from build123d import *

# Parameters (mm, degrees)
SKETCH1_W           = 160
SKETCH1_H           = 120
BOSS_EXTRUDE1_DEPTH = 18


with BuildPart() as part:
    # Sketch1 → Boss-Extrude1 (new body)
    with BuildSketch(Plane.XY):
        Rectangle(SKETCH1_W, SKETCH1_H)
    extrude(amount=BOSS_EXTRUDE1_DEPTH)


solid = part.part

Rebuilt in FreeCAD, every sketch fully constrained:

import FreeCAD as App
import Part
import Sketcher
from FreeCAD import Vector
Q = App.Units.Quantity

doc = App.newDocument("Part")
params = doc.addObject("Spreadsheet::Sheet", "Params")
for row, (alias, value) in enumerate([
    ("sketch1_width", "160 mm"),
    ("sketch1_height", "120 mm"),
    ("pad1_length", "18 mm"),
], start=1):
    params.set(f"A{row}", alias)
    params.set(f"B{row}", "=" + value)
    params.setAlias(f"B{row}", alias)

body = doc.addObject("PartDesign::Body", "Body")

# Sketch on XY plane
sketch1 = doc.addObject("Sketcher::SketchObject", "Sketch")
body.addObject(sketch1)
sketch1.AttachmentSupport = (doc.XY_Plane, [""])
sketch1.MapMode = "FlatFace"
sketch1.addGeometry([
    Part.LineSegment(Vector(-80, 60, 0), Vector(-80, -60, 0)),
    Part.LineSegment(Vector(-80, -60, 0), Vector(80, -60, 0)),
    Part.LineSegment(Vector(80, -60, 0), Vector(80, 60, 0)),
    Part.LineSegment(Vector(80, 60, 0), Vector(-80, 60, 0)),
], False)
sketch1.addConstraint([
    Sketcher.Constraint("Coincident", 0, 2, 1, 1),
    Sketcher.Constraint("Coincident", 1, 2, 2, 1),
    Sketcher.Constraint("Coincident", 2, 2, 3, 1),
    Sketcher.Constraint("Coincident", 3, 2, 0, 1),
    Sketcher.Constraint("Vertical", 0),
    Sketcher.Constraint("Horizontal", 1),
    Sketcher.Constraint("Vertical", 2),
    Sketcher.Constraint("Horizontal", 3),
    Sketcher.Constraint("Symmetric", 0, 2, 2, 2, -1, 1),
    Sketcher.Constraint("DistanceX", 1, 1, 1, 2, Q("160 mm")),
    Sketcher.Constraint("DistanceY", 0, 2, 0, 1, Q("120 mm")),
])
sketch1.setExpression("Constraints[9]", "Params.sketch1_width")
sketch1.setExpression("Constraints[10]", "Params.sketch1_height")
pad1 = doc.addObject("PartDesign::Pad", "Pad")
body.addObject(pad1)
pad1.Profile = sketch1
pad1.setExpression("Length", "Params.pad1_length")

doc.recompute()
